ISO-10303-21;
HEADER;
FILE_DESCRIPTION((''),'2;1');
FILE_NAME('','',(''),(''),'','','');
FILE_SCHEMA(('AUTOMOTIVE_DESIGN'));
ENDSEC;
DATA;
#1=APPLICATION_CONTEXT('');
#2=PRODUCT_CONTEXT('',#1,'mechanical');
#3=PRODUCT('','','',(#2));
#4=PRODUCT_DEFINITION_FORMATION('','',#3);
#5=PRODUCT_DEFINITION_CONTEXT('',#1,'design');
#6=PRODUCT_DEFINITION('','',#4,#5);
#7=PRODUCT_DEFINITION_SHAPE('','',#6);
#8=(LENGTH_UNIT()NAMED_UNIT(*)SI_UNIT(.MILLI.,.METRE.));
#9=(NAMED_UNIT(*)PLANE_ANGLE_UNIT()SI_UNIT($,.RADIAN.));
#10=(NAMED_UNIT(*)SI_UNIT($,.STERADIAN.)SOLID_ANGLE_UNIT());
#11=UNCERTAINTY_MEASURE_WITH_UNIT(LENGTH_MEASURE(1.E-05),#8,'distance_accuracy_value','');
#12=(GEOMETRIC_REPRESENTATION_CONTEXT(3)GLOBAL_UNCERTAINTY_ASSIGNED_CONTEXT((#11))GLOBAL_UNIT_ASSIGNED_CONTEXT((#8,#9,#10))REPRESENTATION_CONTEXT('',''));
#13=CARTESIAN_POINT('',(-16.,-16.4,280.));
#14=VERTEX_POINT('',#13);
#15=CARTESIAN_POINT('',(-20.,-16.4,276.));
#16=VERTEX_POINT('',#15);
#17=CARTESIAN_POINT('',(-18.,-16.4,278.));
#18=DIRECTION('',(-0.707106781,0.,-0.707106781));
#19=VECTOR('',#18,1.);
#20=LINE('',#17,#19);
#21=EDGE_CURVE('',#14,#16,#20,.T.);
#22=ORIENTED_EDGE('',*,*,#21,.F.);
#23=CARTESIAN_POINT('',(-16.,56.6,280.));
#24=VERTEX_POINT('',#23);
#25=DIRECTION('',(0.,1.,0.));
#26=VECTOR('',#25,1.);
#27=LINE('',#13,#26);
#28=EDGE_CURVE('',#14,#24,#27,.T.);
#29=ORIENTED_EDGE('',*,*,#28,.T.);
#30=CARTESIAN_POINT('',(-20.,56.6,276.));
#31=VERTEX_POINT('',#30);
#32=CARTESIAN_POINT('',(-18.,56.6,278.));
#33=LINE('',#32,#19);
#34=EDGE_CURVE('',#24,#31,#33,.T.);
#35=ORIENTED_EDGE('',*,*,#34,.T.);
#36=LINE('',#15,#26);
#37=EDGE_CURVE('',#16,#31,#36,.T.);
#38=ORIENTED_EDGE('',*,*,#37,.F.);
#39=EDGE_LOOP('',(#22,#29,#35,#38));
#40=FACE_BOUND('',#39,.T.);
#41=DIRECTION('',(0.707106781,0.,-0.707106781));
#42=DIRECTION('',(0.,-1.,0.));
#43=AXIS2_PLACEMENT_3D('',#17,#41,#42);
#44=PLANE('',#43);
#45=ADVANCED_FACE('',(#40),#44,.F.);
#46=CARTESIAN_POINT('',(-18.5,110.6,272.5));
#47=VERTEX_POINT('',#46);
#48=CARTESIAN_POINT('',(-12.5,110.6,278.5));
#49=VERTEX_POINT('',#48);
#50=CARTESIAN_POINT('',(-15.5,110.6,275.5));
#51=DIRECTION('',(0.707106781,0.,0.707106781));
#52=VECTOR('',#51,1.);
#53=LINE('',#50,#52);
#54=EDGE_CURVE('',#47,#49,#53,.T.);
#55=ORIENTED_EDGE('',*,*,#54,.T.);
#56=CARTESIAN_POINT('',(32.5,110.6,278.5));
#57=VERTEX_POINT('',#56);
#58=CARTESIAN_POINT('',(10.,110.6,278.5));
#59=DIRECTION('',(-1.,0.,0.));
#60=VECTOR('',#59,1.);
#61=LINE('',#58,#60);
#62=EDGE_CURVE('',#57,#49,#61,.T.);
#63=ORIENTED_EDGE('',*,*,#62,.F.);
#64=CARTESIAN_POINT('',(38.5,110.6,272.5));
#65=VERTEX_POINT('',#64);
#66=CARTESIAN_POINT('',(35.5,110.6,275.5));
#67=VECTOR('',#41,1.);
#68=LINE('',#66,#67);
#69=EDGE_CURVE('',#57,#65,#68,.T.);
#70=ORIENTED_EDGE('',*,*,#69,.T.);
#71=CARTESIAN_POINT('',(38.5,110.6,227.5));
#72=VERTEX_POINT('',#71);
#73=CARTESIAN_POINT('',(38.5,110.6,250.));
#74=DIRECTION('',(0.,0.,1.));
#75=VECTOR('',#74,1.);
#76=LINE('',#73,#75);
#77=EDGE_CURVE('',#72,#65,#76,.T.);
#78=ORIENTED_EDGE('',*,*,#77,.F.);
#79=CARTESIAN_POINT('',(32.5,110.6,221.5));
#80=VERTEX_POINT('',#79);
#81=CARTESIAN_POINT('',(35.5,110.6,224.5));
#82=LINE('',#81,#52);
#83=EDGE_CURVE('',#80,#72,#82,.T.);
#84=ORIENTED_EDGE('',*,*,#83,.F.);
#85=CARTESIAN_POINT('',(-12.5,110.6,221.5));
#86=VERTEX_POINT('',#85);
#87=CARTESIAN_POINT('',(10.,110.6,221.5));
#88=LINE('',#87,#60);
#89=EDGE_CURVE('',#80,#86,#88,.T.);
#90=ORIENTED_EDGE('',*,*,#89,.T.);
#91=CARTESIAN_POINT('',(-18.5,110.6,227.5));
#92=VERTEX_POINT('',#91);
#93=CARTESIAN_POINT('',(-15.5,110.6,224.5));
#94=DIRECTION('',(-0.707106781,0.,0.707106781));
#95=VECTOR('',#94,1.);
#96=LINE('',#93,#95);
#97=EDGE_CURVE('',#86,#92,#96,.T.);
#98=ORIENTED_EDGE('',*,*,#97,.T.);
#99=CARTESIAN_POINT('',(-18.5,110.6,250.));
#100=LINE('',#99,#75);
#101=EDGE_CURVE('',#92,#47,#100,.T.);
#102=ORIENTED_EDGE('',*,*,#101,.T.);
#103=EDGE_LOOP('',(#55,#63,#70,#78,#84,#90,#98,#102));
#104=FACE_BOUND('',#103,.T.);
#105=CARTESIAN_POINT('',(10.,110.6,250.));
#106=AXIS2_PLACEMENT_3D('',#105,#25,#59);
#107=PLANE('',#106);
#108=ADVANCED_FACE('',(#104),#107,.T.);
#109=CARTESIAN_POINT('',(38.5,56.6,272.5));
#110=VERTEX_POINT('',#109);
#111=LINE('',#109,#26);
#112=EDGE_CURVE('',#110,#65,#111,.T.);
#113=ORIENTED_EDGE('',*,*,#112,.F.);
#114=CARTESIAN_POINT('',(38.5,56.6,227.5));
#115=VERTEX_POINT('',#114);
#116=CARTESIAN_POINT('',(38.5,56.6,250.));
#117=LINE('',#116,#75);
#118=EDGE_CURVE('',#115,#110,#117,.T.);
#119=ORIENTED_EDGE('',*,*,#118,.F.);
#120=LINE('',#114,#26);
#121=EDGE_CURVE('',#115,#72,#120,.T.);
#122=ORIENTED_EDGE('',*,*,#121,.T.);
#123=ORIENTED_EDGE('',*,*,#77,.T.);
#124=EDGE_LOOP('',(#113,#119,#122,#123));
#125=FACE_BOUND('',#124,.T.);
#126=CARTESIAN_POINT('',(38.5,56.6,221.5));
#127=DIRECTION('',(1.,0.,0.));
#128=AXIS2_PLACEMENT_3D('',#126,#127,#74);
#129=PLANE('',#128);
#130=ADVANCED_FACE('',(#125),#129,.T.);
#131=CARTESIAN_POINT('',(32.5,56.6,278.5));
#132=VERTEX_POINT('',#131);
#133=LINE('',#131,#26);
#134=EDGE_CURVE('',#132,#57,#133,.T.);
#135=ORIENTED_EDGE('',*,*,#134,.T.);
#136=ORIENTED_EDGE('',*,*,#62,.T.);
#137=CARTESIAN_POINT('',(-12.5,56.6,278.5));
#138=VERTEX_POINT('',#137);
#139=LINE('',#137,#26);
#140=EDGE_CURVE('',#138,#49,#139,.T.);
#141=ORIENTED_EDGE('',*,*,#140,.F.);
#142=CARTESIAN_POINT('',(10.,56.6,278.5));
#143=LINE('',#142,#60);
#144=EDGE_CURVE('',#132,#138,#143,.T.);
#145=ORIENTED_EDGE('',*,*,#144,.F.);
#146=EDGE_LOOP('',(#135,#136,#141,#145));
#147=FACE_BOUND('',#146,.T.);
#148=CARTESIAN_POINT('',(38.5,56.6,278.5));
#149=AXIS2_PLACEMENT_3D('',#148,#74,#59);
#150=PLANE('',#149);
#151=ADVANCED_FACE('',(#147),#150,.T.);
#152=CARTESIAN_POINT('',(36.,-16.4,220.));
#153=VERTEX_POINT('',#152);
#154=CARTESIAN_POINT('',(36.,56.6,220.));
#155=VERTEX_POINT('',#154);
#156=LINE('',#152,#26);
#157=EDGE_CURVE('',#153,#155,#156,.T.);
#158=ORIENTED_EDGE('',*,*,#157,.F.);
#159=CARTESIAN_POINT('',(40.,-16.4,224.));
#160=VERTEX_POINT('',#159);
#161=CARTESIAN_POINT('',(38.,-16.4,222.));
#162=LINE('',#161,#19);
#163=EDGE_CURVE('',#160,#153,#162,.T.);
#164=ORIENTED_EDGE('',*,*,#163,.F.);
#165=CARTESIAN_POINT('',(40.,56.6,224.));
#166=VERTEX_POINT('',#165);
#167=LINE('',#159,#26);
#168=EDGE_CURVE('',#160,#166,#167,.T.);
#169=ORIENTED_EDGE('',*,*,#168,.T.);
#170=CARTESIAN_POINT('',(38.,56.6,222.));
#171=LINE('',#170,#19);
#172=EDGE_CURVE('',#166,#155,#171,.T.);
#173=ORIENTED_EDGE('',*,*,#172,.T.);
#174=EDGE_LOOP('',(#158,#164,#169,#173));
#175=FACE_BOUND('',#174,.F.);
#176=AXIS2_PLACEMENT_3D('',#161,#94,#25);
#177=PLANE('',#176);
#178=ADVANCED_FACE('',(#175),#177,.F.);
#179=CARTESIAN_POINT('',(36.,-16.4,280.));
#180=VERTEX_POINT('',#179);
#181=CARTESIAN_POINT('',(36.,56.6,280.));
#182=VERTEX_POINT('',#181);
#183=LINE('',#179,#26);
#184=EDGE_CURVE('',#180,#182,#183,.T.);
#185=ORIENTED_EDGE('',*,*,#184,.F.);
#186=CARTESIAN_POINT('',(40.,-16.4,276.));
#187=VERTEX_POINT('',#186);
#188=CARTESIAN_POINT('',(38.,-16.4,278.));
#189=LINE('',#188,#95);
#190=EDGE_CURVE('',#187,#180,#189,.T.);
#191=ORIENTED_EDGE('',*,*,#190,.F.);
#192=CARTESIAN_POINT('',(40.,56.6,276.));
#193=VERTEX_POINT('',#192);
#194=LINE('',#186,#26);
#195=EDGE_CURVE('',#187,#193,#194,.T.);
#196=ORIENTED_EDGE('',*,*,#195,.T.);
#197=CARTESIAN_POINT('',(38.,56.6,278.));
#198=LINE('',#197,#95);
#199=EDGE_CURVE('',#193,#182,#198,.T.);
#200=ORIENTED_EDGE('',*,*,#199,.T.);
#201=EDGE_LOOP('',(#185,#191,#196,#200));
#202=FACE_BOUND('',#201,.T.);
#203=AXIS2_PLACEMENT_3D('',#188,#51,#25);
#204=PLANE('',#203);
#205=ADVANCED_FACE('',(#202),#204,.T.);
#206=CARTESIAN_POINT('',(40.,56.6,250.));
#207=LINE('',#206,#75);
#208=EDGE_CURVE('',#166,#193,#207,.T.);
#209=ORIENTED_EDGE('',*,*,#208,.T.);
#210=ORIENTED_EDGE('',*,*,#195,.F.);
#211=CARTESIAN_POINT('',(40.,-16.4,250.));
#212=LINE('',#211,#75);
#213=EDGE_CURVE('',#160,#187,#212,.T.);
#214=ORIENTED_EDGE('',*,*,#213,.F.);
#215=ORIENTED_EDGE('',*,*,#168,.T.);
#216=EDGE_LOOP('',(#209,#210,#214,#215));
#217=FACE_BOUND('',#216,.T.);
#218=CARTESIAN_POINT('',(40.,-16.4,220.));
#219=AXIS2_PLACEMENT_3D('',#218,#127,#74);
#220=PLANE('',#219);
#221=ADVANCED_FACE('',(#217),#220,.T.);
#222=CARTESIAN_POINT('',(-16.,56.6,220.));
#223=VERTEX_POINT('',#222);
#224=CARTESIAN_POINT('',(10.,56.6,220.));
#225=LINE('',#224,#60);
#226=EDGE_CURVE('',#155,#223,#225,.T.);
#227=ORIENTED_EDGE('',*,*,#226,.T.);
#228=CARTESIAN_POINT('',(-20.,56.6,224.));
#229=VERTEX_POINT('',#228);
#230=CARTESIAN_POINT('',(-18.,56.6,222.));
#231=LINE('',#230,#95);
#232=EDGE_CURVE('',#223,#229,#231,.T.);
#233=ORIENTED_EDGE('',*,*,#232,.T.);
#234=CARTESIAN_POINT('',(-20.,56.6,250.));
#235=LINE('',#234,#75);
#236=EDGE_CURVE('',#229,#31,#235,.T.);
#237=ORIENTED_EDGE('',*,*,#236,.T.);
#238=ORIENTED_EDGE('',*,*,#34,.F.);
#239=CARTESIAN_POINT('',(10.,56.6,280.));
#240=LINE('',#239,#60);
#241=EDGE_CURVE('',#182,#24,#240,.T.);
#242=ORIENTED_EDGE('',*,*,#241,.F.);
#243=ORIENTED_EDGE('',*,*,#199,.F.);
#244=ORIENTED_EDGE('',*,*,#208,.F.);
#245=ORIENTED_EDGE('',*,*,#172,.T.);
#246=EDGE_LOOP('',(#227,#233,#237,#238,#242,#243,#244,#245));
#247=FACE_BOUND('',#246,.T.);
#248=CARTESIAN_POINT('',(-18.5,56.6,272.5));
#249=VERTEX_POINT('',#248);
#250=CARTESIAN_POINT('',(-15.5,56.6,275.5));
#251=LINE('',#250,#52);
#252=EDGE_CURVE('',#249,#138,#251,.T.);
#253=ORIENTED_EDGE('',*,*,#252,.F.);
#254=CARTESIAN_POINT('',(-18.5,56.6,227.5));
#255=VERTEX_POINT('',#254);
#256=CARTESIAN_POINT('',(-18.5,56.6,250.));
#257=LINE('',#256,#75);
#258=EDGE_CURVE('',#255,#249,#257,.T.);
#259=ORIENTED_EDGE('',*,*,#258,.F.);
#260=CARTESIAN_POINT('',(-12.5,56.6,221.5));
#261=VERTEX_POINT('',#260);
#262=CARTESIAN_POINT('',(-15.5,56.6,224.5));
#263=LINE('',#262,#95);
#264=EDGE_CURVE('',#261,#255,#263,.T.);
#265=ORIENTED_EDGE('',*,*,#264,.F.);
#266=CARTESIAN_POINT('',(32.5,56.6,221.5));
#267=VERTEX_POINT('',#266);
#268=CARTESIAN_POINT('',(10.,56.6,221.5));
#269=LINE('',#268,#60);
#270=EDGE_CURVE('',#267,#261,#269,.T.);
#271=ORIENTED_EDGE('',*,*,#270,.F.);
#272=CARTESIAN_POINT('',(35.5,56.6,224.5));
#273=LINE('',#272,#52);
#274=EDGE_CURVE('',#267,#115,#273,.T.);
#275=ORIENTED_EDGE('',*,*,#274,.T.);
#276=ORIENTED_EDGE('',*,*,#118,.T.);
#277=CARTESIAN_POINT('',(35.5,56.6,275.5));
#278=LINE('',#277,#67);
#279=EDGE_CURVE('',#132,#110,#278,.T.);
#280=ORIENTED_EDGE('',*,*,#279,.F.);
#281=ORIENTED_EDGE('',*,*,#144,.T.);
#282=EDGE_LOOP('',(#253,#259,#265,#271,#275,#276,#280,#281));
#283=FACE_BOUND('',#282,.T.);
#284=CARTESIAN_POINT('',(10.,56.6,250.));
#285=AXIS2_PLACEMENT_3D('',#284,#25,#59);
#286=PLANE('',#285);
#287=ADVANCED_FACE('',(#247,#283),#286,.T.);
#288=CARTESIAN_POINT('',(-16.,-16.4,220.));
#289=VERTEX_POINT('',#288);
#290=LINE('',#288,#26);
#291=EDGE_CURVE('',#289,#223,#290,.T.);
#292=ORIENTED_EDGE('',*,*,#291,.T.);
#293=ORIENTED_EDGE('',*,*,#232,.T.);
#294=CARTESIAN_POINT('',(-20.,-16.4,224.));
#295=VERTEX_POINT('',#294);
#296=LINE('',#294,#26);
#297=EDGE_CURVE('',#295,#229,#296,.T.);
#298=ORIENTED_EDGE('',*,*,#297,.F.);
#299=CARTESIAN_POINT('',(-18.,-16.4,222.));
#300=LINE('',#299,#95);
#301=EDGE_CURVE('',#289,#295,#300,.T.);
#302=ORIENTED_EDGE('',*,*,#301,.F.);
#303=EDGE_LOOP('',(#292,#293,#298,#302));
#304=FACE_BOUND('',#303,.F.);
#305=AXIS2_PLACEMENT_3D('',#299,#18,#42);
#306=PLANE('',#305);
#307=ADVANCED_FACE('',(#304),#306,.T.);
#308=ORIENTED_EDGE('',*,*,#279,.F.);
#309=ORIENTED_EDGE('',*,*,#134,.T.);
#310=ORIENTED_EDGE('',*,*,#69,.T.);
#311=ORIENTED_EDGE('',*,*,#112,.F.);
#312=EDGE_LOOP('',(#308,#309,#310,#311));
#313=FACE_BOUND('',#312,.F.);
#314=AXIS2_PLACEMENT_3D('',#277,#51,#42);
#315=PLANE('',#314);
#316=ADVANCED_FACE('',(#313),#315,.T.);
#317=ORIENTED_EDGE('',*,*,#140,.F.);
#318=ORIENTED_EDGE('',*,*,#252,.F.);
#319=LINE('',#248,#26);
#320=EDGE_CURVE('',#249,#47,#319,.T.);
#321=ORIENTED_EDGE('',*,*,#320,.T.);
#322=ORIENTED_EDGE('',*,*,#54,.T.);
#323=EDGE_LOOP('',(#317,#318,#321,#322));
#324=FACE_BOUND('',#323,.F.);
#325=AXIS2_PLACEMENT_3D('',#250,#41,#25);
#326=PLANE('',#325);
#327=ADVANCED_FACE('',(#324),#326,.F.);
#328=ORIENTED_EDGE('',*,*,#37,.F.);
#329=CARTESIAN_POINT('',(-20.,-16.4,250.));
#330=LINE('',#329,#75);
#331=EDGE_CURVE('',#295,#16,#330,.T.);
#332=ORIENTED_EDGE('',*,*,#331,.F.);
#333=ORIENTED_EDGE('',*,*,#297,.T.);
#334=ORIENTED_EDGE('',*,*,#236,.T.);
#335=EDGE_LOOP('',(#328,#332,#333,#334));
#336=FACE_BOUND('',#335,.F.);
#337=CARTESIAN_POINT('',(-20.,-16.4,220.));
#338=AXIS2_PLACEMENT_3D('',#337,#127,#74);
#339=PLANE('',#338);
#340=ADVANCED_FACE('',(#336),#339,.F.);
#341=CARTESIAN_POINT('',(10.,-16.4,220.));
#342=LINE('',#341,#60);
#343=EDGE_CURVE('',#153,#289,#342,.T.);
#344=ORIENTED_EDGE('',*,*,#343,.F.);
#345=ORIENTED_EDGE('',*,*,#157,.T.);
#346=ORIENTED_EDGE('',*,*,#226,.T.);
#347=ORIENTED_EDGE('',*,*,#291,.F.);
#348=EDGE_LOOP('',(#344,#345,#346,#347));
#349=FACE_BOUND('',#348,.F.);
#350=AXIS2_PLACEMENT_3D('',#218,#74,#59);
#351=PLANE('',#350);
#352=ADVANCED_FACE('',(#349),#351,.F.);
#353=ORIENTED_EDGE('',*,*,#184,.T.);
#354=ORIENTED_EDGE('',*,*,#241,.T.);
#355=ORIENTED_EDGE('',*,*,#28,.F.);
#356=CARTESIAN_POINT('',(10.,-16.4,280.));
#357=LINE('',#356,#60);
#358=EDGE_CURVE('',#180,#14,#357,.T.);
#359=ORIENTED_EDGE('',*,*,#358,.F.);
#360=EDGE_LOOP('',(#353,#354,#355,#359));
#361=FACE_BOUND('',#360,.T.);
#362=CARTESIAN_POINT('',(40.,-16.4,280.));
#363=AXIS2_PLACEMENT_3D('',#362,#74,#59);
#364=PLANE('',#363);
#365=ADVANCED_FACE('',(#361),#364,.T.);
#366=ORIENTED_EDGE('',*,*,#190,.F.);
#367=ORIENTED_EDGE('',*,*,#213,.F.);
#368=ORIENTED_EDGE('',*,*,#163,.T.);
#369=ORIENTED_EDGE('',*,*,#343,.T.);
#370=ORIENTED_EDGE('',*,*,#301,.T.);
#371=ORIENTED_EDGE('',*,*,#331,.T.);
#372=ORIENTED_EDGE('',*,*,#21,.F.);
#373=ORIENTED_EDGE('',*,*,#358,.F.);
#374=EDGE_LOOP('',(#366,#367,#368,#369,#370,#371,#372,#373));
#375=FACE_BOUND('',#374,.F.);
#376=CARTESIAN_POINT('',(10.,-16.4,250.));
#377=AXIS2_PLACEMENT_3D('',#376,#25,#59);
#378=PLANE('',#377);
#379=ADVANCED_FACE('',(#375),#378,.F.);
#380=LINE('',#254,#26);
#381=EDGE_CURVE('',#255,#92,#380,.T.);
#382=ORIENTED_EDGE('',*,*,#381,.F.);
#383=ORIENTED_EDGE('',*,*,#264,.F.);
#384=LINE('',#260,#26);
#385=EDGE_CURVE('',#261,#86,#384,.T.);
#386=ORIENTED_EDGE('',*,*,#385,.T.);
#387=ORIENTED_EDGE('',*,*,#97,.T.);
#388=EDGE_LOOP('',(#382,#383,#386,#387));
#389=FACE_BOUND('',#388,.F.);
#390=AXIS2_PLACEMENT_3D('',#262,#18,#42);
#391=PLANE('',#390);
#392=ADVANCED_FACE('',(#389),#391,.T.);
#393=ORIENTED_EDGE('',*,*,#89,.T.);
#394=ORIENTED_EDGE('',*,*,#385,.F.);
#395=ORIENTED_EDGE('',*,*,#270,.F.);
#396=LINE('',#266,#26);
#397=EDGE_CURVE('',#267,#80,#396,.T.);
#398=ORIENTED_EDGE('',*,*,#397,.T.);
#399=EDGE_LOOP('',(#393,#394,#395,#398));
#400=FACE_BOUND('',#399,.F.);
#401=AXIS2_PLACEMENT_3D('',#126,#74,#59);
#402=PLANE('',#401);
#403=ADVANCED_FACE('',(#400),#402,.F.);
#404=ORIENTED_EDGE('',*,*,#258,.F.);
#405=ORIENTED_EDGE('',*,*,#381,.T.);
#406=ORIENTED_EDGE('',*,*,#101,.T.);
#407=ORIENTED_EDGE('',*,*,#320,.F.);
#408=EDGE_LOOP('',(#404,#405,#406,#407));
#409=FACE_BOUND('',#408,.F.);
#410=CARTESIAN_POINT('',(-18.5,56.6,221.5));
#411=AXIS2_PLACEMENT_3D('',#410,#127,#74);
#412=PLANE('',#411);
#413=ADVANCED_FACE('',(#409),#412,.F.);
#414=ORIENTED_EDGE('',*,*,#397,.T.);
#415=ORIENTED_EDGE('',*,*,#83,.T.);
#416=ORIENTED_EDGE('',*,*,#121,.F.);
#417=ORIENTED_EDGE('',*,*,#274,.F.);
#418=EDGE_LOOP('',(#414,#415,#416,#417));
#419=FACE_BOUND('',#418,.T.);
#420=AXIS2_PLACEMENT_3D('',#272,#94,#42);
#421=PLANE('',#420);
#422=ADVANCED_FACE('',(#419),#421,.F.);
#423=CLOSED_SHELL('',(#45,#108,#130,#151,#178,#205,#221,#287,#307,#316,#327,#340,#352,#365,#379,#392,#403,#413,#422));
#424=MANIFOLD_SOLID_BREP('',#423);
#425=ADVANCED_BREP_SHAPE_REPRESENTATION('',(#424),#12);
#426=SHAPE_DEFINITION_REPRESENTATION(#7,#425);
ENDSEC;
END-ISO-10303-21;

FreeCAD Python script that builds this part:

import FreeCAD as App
import Part
import Sketcher
from FreeCAD import Vector
Q = App.Units.Quantity


def edges_at(feature, points):
    """Names of the edges that pass closest to the given points."""
    edges = feature.Shape.Edges
    near = lambda p: min(range(len(edges)), key=lambda i: edges[i].distToShape(Part.Vertex(*p))[0])
    return sorted({f"Edge{near(p) + 1}" for p in points})

doc = App.newDocument("Part")
body = doc.addObject("PartDesign::Body", "Body")

# Sketch on XZ plane
sketch1 = body.newObject("Sketcher::SketchObject", "Sketch")
sketch1.AttachmentSupport = (doc.getObject("XZ_Plane"), [""])
sketch1.MapMode = "FlatFace"
sketch1.addGeometry(Part.LineSegment(Vector(-30, 30, 0), Vector(-30, -30, 0)), False)
sketch1.addGeometry(Part.LineSegment(Vector(-30, -30, 0), Vector(30, -30, 0)), False)
sketch1.addGeometry(Part.LineSegment(Vector(30, -30, 0), Vector(30, 30, 0)), False)
sketch1.addGeometry(Part.LineSegment(Vector(30, 30, 0), Vector(-30, 30, 0)), False)
sketch1.addConstraint(Sketcher.Constraint("Coincident", 0, 2, 1, 1))
sketch1.addConstraint(Sketcher.Constraint("Coincident", 1, 2, 2, 1))
sketch1.addConstraint(Sketcher.Constraint("Coincident", 2, 2, 3, 1))
sketch1.addConstraint(Sketcher.Constraint("Coincident", 3, 2, 0, 1))
sketch1.addConstraint(Sketcher.Constraint("Vertical", 0))
sketch1.addConstraint(Sketcher.Constraint("Horizontal", 1))
sketch1.addConstraint(Sketcher.Constraint("Vertical", 2))
sketch1.addConstraint(Sketcher.Constraint("Horizontal", 3))
sketch1.addConstraint(Sketcher.Constraint("Symmetric", 0, 2, 2, 2, -1, 1))
sketch1.addConstraint(Sketcher.Constraint("Equal", 3, 0))
sketch1.addConstraint(Sketcher.Constraint("DistanceX", 1, 1, 1, 2, Q("60 mm")))
pad1 = body.newObject("PartDesign::Pad", "Pad")
pad1.Profile = sketch1
pad1.Length = 73

# Sketch on XZ plane
sketch2 = body.newObject("Sketcher::SketchObject", "Sketch001")
sketch2.AttachmentSupport = (doc.getObject("XZ_Plane"), [""])
sketch2.MapMode = "FlatFace"
sketch2.AttachmentOffset = App.Placement(Vector(0, 0, 73), App.Rotation())
sketch2.addGeometry(Part.LineSegment(Vector(-28.5, 28.5, 0), Vector(-28.5, -28.5, 0)), False)
sketch2.addGeometry(Part.LineSegment(Vector(-28.5, -28.5, 0), Vector(28.5, -28.5, 0)), False)
sketch2.addGeometry(Part.LineSegment(Vector(28.5, -28.5, 0), Vector(28.5, 28.5, 0)), False)
sketch2.addGeometry(Part.LineSegment(Vector(28.5, 28.5, 0), Vector(-28.5, 28.5, 0)), False)
sketch2.addConstraint(Sketcher.Constraint("Coincident", 0, 2, 1, 1))
sketch2.addConstraint(Sketcher.Constraint("Coincident", 1, 2, 2, 1))
sketch2.addConstraint(Sketcher.Constraint("Coincident", 2, 2, 3, 1))
sketch2.addConstraint(Sketcher.Constraint("Coincident", 3, 2, 0, 1))
sketch2.addConstraint(Sketcher.Constraint("Vertical", 0))
sketch2.addConstraint(Sketcher.Constraint("Horizontal", 1))
sketch2.addConstraint(Sketcher.Constraint("Vertical", 2))
sketch2.addConstraint(Sketcher.Constraint("Horizontal", 3))
sketch2.addConstraint(Sketcher.Constraint("Symmetric", 0, 2, 2, 2, -1, 1))
sketch2.addConstraint(Sketcher.Constraint("Equal", 3, 0))
sketch2.addConstraint(Sketcher.Constraint("DistanceX", 1, 1, 1, 2, Q("57 mm")))
pad2 = body.newObject("PartDesign::Pad", "Pad001")
pad2.Profile = sketch2
pad2.Length = 54
doc.recompute()

chamfer = body.newObject("PartDesign::Chamfer", "Chamfer")
chamfer.Base = (pad2, edges_at(pad2, [
    (-28.5, -100, 28.5),
    (-28.5, -100, -28.5),
    (28.5, -100, -28.5),
    (28.5, -100, 28.5),
]))
chamfer.Size = 6
doc.recompute()

chamfer2 = body.newObject("PartDesign::Chamfer", "Chamfer001")
chamfer2.Base = (chamfer, edges_at(chamfer, [
    (30, -36.5, 30),
    (-30, -36.5, -30),
    (-30, -36.5, 30),
    (30, -36.5, -30),
]))
chamfer2.Size = 4
body2 = doc.addObject("PartDesign::Body", "Body001")
doc.recompute()

body.Placement = App.Placement(Vector(10, -16.4, 250), App.Rotation(Vector(0, 0, 1), 180))
boolean = body2.newObject("PartDesign::Boolean", "Boolean")
boolean.Type = "Fuse"
boolean.addObjects([body])

doc.recompute()
